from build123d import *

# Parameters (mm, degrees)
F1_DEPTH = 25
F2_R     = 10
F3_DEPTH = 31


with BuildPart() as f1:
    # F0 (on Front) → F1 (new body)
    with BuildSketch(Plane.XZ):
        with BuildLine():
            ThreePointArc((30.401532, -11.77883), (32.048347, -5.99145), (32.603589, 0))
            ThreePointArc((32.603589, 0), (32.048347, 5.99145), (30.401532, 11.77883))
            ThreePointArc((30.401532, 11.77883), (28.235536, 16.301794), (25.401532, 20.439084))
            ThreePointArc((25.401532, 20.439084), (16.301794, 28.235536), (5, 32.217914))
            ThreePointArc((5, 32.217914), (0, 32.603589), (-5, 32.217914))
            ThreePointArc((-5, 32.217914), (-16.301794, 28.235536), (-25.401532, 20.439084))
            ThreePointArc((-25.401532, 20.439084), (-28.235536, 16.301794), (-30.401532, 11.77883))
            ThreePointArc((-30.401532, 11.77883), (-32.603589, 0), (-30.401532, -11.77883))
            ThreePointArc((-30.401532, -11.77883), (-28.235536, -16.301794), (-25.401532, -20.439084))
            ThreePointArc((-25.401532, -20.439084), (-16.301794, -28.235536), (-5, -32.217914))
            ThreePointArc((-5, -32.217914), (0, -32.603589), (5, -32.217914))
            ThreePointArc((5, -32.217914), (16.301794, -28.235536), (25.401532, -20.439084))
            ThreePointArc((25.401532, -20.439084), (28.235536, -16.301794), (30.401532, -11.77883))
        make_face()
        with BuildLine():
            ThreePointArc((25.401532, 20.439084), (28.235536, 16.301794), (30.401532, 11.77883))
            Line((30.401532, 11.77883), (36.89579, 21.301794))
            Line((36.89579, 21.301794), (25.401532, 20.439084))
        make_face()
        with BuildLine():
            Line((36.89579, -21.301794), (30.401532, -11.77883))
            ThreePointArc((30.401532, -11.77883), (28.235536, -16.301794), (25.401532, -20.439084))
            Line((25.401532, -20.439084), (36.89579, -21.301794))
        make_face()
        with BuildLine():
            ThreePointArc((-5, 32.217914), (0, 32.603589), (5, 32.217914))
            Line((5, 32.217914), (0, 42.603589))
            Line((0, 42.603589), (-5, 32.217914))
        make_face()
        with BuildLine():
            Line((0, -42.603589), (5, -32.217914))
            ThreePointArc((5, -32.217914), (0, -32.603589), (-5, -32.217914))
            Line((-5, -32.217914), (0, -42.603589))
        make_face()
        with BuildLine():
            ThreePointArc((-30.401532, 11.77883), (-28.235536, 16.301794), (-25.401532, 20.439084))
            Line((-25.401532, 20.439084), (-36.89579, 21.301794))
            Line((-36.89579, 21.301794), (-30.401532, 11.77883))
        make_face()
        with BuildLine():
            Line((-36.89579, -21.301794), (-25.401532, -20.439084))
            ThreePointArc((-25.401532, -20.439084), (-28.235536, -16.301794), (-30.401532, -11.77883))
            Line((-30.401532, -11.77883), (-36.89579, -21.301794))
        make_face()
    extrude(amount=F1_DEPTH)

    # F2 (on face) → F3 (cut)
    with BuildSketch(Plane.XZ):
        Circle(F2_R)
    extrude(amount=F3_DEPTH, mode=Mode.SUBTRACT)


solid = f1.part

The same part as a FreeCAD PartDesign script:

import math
import FreeCAD as App
import Part
import Sketcher

doc = App.newDocument("Part")
body = doc.addObject("PartDesign::Body", "Body")

sketch1 = body.newObject("Sketcher::SketchObject", "Sketch")
sketch1.AttachmentSupport = (doc.getObject("XZ_Plane"), [""])
sketch1.MapMode = "FlatFace"
sketch1.addGeometry(Part.ArcOfCircle(Part.Circle(App.Vector(0.000017, -0.000002, 0), App.Vector(0, 0, 1), 32.603572), math.radians(-21.178467), math.radians(0.000003)), False)
sketch1.addGeometry(Part.ArcOfCircle(Part.Circle(App.Vector(0.000017, 0.000002, 0), App.Vector(0, 0, 1), 32.603572), math.radians(-0.000003), math.radians(21.178467)), False)
sketch1.addGeometry(Part.LineSegment(App.Vector(30.401532, 11.77883, 0), App.Vector(36.89579, 21.301794, 0)), False)
sketch1.addGeometry(Part.LineSegment(App.Vector(36.89579, 21.301794, 0), App.Vector(25.401532, 20.439084, 0)), False)
sketch1.addGeometry(Part.ArcOfCircle(Part.Circle(App.Vector(0, 0, 0), App.Vector(0, 0, 1), 32.603589), math.radians(38.821541), math.radians(81.178459)), False)
sketch1.addGeometry(Part.LineSegment(App.Vector(5, 32.217914, 0), App.Vector(0, 42.603589, 0)), False)
sketch1.addGeometry(Part.LineSegment(App.Vector(0, 42.603589, 0), App.Vector(-5, 32.217914, 0)), False)
sketch1.addGeometry(Part.ArcOfCircle(Part.Circle(App.Vector(0, 0, 0), App.Vector(0, 0, 1), 32.603589), math.radians(98.821541), math.radians(141.178459)), False)
sketch1.addGeometry(Part.LineSegment(App.Vector(-25.401532, 20.439084, 0), App.Vector(-36.89579, 21.301794, 0)), False)
sketch1.addGeometry(Part.LineSegment(App.Vector(-36.89579, 21.301794, 0), App.Vector(-30.401532, 11.77883, 0)), False)
sketch1.addGeometry(Part.ArcOfCircle(Part.Circle(App.Vector(-0.000007, 0, 0), App.Vector(0, 0, 1), 32.603582), math.radians(158.821536), math.radians(201.178464)), False)
sketch1.addGeometry(Part.LineSegment(App.Vector(-30.401532, -11.77883, 0), App.Vector(-36.89579, -21.301794, 0)), False)
sketch1.addGeometry(Part.LineSegment(App.Vector(-36.89579, -21.301794, 0), App.Vector(-25.401532, -20.439084, 0)), False)
sketch1.addGeometry(Part.ArcOfCircle(Part.Circle(App.Vector(0, 0, 0), App.Vector(0, 0, 1), 32.603589), math.radians(-141.178459), math.radians(-98.821541)), False)
sketch1.addGeometry(Part.LineSegment(App.Vector(-5, -32.217914, 0), App.Vector(0, -42.603589, 0)), False)
sketch1.addGeometry(Part.LineSegment(App.Vector(0, -42.603589, 0), App.Vector(5, -32.217914, 0)), False)
sketch1.addGeometry(Part.ArcOfCircle(Part.Circle(App.Vector(0, 0, 0), App.Vector(0, 0, 1), 32.603589), math.radians(-81.178459), math.radians(-38.821541)), False)
sketch1.addGeometry(Part.LineSegment(App.Vector(25.401532, -20.439084, 0), App.Vector(36.89579, -21.301794, 0)), False)
sketch1.addGeometry(Part.LineSegment(App.Vector(36.89579, -21.301794, 0), App.Vector(30.401532, -11.77883, 0)), False)
sketch1.addConstraint(Sketcher.Constraint("Coincident", 0, 2, 1, 1))
sketch1.addConstraint(Sketcher.Constraint("Coincident", 1, 2, 2, 1))
sketch1.addConstraint(Sketcher.Constraint("Coincident", 2, 2, 3, 1))
sketch1.addConstraint(Sketcher.Constraint("Coincident", 3, 2, 4, 1))
sketch1.addConstraint(Sketcher.Constraint("Coincident", 4, 2, 5, 1))
sketch1.addConstraint(Sketcher.Constraint("Coincident", 5, 2, 6, 1))
sketch1.addConstraint(Sketcher.Constraint("Coincident", 6, 2, 7, 1))
sketch1.addConstraint(Sketcher.Constraint("Coincident", 7, 2, 8, 1))
sketch1.addConstraint(Sketcher.Constraint("Coincident", 8, 2, 9, 1))
sketch1.addConstraint(Sketcher.Constraint("Coincident", 9, 2, 10, 1))
sketch1.addConstraint(Sketcher.Constraint("Coincident", 10, 2, 11, 1))
sketch1.addConstraint(Sketcher.Constraint("Coincident", 11, 2, 12, 1))
sketch1.addConstraint(Sketcher.Constraint("Coincident", 12, 2, 13, 1))
sketch1.addConstraint(Sketcher.Constraint("Coincident", 13, 2, 14, 1))
sketch1.addConstraint(Sketcher.Constraint("Coincident", 14, 2, 15, 1))
sketch1.addConstraint(Sketcher.Constraint("Coincident", 15, 2, 16, 1))
sketch1.addConstraint(Sketcher.Constraint("Coincident", 16, 2, 17, 1))
sketch1.addConstraint(Sketcher.Constraint("Coincident", 17, 2, 18, 1))
sketch1.addConstraint(Sketcher.Constraint("Coincident", 18, 2, 0, 1))
sketch1.addConstraint(Sketcher.Constraint("Coincident", 4, 3, -1, 1))
sketch1.addConstraint(Sketcher.Constraint("Coincident", 7, 3, -1, 1))
sketch1.addConstraint(Sketcher.Constraint("Coincident", 10, 3, -1, 1))
sketch1.addConstraint(Sketcher.Constraint("Coincident", 13, 3, -1, 1))
sketch1.addConstraint(Sketcher.Constraint("Coincident", 16, 3, -1, 1))
sketch1.addConstraint(Sketcher.Constraint("Coincident", 1, 3, 0, 3))
sketch1.addConstraint(Sketcher.Constraint("PointOnObject", 0, 3, -1))
sketch1.addConstraint(Sketcher.Constraint("PointOnObject", 0, 2, -1))
sketch1.addConstraint(Sketcher.Constraint("PointOnObject", 5, 2, -2))
sketch1.addConstraint(Sketcher.Constraint("PointOnObject", 14, 2, -2))
sketch1.addConstraint(Sketcher.Constraint("DistanceX", -1, 1, 4, 2, 5.0))
sketch1.addConstraint(Sketcher.Constraint("DistanceX", 6, 2, -1, 1, 5.0))
sketch1.addConstraint(Sketcher.Constraint("DistanceX", 13, 2, -1, 1, 5.0))
sketch1.addConstraint(Sketcher.Constraint("DistanceX", -1, 1, 15, 2, 5.0))
sketch1.addConstraint(Sketcher.Constraint("DistanceX", 3, 2, 1, 2, 5.0))
sketch1.addConstraint(Sketcher.Constraint("DistanceX", 9, 2, 7, 2, 5.0))
sketch1.addConstraint(Sketcher.Constraint("DistanceX", 10, 2, 7, 2, 5.0))
sketch1.addConstraint(Sketcher.Constraint("DistanceX", 10, 2, 12, 2, 5.0))
sketch1.addConstraint(Sketcher.Constraint("DistanceX", 16, 2, 18, 2, 5.0))
sketch1.addConstraint(Sketcher.Constraint("Radius", 4, 32.603589))
sketch1.addConstraint(Sketcher.Constraint("Radius", 7, 32.603589))
sketch1.addConstraint(Sketcher.Constraint("Radius", 10, 32.603582))
sketch1.addConstraint(Sketcher.Constraint("Radius", 13, 32.603589))
sketch1.addConstraint(Sketcher.Constraint("Radius", 16, 32.603589))
sketch1.addConstraint(Sketcher.Constraint("Radius", 0, 32.603572))
sketch1.addConstraint(Sketcher.Constraint("DistanceX", 0, 2, 2, 2, 4.292201))
sketch1.addConstraint(Sketcher.Constraint("DistanceX", 0, 2, 17, 2, 4.292201))
sketch1.addConstraint(Sketcher.Constraint("Distance", 3, 11.526588))
sketch1.addConstraint(Sketcher.Constraint("Distance", 5, 11.526589))
sketch1.addConstraint(Sketcher.Constraint("Distance", 8, 11.526588))
sketch1.addConstraint(Sketcher.Constraint("Distance", 12, 11.526588))
sketch1.addConstraint(Sketcher.Constraint("Distance", 14, 11.526589))
sketch1.addConstraint(Sketcher.Constraint("Distance", 17, 11.526588))
sketch1.addConstraint(Sketcher.Constraint("DistanceX", -1, 1, 0, 2, 32.603589))
sketch1.addConstraint(Sketcher.Constraint("DistanceX", -1, 1, 1, 2, 30.401532))
sketch1.addConstraint(Sketcher.Constraint("DistanceX", 7, 2, -1, 1, 25.401532))
sketch1.addConstraint(Sketcher.Constraint("DistanceX", 8, 2, -1, 1, 36.89579))
sketch1.addConstraint(Sketcher.Constraint("DistanceX", 11, 2, -1, 1, 36.89579))
sketch1.addConstraint(Sketcher.Constraint("DistanceX", -1, 1, 16, 2, 25.401532))
pad1 = body.newObject("PartDesign::Pad", "Pad")
pad1.Profile = sketch1
pad1.Length = 25

sketch2 = body.newObject("Sketcher::SketchObject", "Sketch001")
sketch2.AttachmentSupport = (doc.getObject("XZ_Plane"), [""])
sketch2.MapMode = "FlatFace"
sketch2.addGeometry(Part.Circle(App.Vector(0, 0, 0), App.Vector(0, 0, 1), 10), False)
sketch2.addConstraint(Sketcher.Constraint("Coincident", 0, 3, -1, 1))
sketch2.addConstraint(Sketcher.Constraint("Diameter", 0, 20.0))
pocket1 = body.newObject("PartDesign::Pocket", "Pocket")
pocket1.Profile = sketch2
pocket1.Length = 31
pocket1.Reversed = True

doc.recompute()
